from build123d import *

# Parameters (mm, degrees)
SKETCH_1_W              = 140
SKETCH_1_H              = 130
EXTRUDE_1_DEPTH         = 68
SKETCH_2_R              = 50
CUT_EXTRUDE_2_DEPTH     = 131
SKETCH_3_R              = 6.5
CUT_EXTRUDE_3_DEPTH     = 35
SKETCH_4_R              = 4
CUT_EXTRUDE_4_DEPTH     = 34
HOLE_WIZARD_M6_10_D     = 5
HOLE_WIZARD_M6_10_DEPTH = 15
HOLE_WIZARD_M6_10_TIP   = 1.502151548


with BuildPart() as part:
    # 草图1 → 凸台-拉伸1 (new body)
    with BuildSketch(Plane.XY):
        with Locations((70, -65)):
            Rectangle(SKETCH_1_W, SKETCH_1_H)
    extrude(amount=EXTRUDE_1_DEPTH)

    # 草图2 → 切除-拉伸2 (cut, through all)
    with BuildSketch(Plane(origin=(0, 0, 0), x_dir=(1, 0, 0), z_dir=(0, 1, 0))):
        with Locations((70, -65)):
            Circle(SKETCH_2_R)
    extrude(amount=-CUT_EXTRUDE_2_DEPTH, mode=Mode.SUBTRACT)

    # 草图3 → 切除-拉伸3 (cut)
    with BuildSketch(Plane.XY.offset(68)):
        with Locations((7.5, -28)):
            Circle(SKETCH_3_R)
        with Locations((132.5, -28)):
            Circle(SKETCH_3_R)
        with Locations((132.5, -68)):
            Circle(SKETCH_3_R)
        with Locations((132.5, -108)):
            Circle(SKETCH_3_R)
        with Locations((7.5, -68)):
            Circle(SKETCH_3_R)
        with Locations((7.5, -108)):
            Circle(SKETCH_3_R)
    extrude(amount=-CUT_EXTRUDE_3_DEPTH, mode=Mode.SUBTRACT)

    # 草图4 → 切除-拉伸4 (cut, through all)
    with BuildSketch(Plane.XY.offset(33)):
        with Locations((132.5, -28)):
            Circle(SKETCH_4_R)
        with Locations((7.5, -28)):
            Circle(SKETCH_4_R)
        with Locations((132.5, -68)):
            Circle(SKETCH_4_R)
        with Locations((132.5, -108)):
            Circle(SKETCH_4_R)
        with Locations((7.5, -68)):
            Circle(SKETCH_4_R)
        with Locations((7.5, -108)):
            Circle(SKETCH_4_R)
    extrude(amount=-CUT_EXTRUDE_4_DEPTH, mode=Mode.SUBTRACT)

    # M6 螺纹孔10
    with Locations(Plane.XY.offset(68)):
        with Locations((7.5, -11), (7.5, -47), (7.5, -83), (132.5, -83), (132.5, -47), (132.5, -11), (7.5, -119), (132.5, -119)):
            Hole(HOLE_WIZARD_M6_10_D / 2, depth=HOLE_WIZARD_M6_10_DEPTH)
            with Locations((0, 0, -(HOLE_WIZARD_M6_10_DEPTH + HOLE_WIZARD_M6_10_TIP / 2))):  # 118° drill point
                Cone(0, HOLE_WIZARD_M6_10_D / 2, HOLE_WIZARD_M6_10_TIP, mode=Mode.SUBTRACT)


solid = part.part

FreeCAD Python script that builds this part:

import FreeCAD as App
import Part
import Sketcher
from FreeCAD import Vector
Q = App.Units.Quantity


def add_polygon(sketch, points):
    """Adds a closed chain of lines whose ends are joined by coincident constraints."""
    first, n = sketch.GeometryCount, len(points)
    for a, b in zip(points, points[1:] + points[:1]):
        sketch.addGeometry(Part.LineSegment(App.Vector(*a, 0), App.Vector(*b, 0)), False)
    for i in range(n):
        sketch.addConstraint(Sketcher.Constraint("Coincident", first + i, 2, first + (i + 1) % n, 1))

doc = App.newDocument("Part")
body = doc.addObject("PartDesign::Body", "Body")

# Sketch on XY plane
sketch1 = body.newObject("Sketcher::SketchObject", "Sketch")
sketch1.AttachmentSupport = (doc.getObject("XY_Plane"), [""])
sketch1.MapMode = "FlatFace"
add_polygon(sketch1, [(0, 0), (0, -130), (140, -130), (140, 0)])  # lines 0-3
sketch1.addConstraint([
    Sketcher.Constraint("Vertical", 0),
    Sketcher.Constraint("Horizontal", 1),
    Sketcher.Constraint("Vertical", 2),
    Sketcher.Constraint("Horizontal", 3),
    Sketcher.Constraint("Coincident", 3, 2, -1, 1),
    Sketcher.Constraint("DistanceX", 1, 1, 1, 2, Q("140 mm")),
    Sketcher.Constraint("DistanceY", 0, 2, 0, 1, Q("130 mm")),
])
pad1 = body.newObject("PartDesign::Pad", "Pad")
pad1.Profile = sketch1
pad1.Length = 68

# Sketch on XZ plane
sketch2 = body.newObject("Sketcher::SketchObject", "Sketch001")
sketch2.AttachmentSupport = (doc.getObject("XZ_Plane"), [""])
sketch2.MapMode = "FlatFace"
sketch2.addGeometry(Part.Circle(Vector(70, 65, 0), Vector(0, 0, 1), 50), False)
sketch2.addConstraint([
    Sketcher.Constraint("Diameter", 0, Q("100 mm")),
    Sketcher.Constraint("DistanceX", -1, 1, 0, 3, Q("70 mm")),
    Sketcher.Constraint("DistanceY", -1, 1, 0, 3, Q("65 mm")),
])
pocket1 = body.newObject("PartDesign::Pocket", "Pocket")
pocket1.Profile = sketch2
pocket1.Type = "ThroughAll"
pocket1.Reversed = True

# Sketch on XY plane
sketch3 = body.newObject("Sketcher::SketchObject", "Sketch002")
sketch3.AttachmentSupport = (doc.getObject("XY_Plane"), [""])
sketch3.MapMode = "FlatFace"
sketch3.AttachmentOffset = App.Placement(Vector(0, 0, 68), App.Rotation())
sketch3.addGeometry([
    Part.Circle(Vector(8, -28, 0), Vector(0, 0, 1), 6),  # 0
    Part.Circle(Vector(132, -28, 0), Vector(0, 0, 1), 6),  # 1
    Part.Circle(Vector(132, -68, 0), Vector(0, 0, 1), 6),  # 2
    Part.Circle(Vector(132, -108, 0), Vector(0, 0, 1), 6),  # 3
    Part.Circle(Vector(8, -68, 0), Vector(0, 0, 1), 6),  # 4
    Part.Circle(Vector(8, -108, 0), Vector(0, 0, 1), 6),  # 5
], False)
sketch3.addConstraint([
    Sketcher.Constraint("Equal", 0, 1),
    Sketcher.Constraint("Equal", 1, 2),
    Sketcher.Constraint("Equal", 2, 3),
    Sketcher.Constraint("Equal", 3, 4),
    Sketcher.Constraint("Equal", 4, 5),
    Sketcher.Constraint("Horizontal", 0, 3, 1, 3),
    Sketcher.Constraint("Horizontal", 2, 3, 4, 3),
    Sketcher.Constraint("Horizontal", 3, 3, 5, 3),
    Sketcher.Constraint("Vertical", 1, 3, 2, 3),
    Sketcher.Constraint("Vertical", 2, 3, 3, 3),
    Sketcher.Constraint("Vertical", 0, 3, 4, 3),
    Sketcher.Constraint("Vertical", 4, 3, 5, 3),
    Sketcher.Constraint("Diameter", 0, Q("13 mm")),
    Sketcher.Constraint("DistanceY", 0, 3, -1, 1, Q("28 mm")),
    Sketcher.Constraint("DistanceY", 2, 3, -1, 1, Q("68 mm")),
    Sketcher.Constraint("DistanceY", 3, 3, -1, 1, Q("108 mm")),
    Sketcher.Constraint("DistanceX", 0, 3, 1, 3, Q("125 mm")),
    Sketcher.Constraint("DistanceX", -1, 1, 0, 3, Q("7.5 mm")),
])
pocket2 = body.newObject("PartDesign::Pocket", "Pocket001")
pocket2.Profile = sketch3
pocket2.Length = 35

# Sketch on XY plane
sketch4 = body.newObject("Sketcher::SketchObject", "Sketch003")
sketch4.AttachmentSupport = (doc.getObject("XY_Plane"), [""])
sketch4.MapMode = "FlatFace"
sketch4.AttachmentOffset = App.Placement(Vector(0, 0, 33), App.Rotation())
sketch4.addGeometry([
    Part.Circle(Vector(132.5, -28, 0), Vector(0, 0, 1), 4),  # 0
    Part.Circle(Vector(7.5, -28, 0), Vector(0, 0, 1), 4),  # 1
    Part.Circle(Vector(132.5, -68, 0), Vector(0, 0, 1), 4),  # 2
    Part.Circle(Vector(132.5, -108, 0), Vector(0, 0, 1), 4),  # 3
    Part.Circle(Vector(7.5, -68, 0), Vector(0, 0, 1), 4),  # 4
    Part.Circle(Vector(7.5, -108, 0), Vector(0, 0, 1), 4),  # 5
], False)
sketch4.addConstraint([
    Sketcher.Constraint("Equal", 0, 1),
    Sketcher.Constraint("Equal", 1, 2),
    Sketcher.Constraint("Equal", 2, 3),
    Sketcher.Constraint("Equal", 3, 4),
    Sketcher.Constraint("Equal", 4, 5),
    Sketcher.Constraint("Horizontal", 0, 3, 1, 3),
    Sketcher.Constraint("Horizontal", 2, 3, 4, 3),
    Sketcher.Constraint("Horizontal", 3, 3, 5, 3),
    Sketcher.Constraint("Vertical", 0, 3, 2, 3),
    Sketcher.Constraint("Vertical", 2, 3, 3, 3),
    Sketcher.Constraint("Vertical", 1, 3, 4, 3),
    Sketcher.Constraint("Vertical", 4, 3, 5, 3),
    Sketcher.Constraint("Diameter", 0, Q("8 mm")),
    Sketcher.Constraint("DistanceY", 0, 3, -1, 1, Q("28 mm")),
    Sketcher.Constraint("DistanceY", 2, 3, -1, 1, Q("68 mm")),
    Sketcher.Constraint("DistanceY", 3, 3, -1, 1, Q("108 mm")),
    Sketcher.Constraint("DistanceX", 1, 3, 0, 3, Q("125 mm")),
    Sketcher.Constraint("DistanceX", -1, 1, 0, 3, Q("132.5 mm")),
])
pocket3 = body.newObject("PartDesign::Pocket", "Pocket002")
pocket3.Profile = sketch4
pocket3.Type = "ThroughAll"

# Sketch on XY plane
sketch5 = body.newObject("Sketcher::SketchObject", "Sketch004")
sketch5.AttachmentSupport = (doc.getObject("XY_Plane"), [""])
sketch5.MapMode = "FlatFace"
sketch5.AttachmentOffset = App.Placement(Vector(0, 0, 68), App.Rotation())
sketch5.addGeometry([
    Part.Circle(Vector(7.5, -11, 0), Vector(0, 0, 1), 2.5),  # 0
    Part.Circle(Vector(7.5, -47, 0), Vector(0, 0, 1), 2.5),  # 1
    Part.Circle(Vector(7.5, -83, 0), Vector(0, 0, 1), 2.5),  # 2
    Part.Circle(Vector(132.5, -83, 0), Vector(0, 0, 1), 2.5),  # 3
    Part.Circle(Vector(132.5, -47, 0), Vector(0, 0, 1), 2.5),  # 4
    Part.Circle(Vector(132.5, -11, 0), Vector(0, 0, 1), 2.5),  # 5
    Part.Circle(Vector(7.5, -119, 0), Vector(0, 0, 1), 2.5),  # 6
    Part.Circle(Vector(132.5, -119, 0), Vector(0, 0, 1), 2.5),  # 7
], False)
sketch5.addConstraint([
    Sketcher.Constraint("Equal", 0, 1),
    Sketcher.Constraint("Equal", 1, 2),
    Sketcher.Constraint("Equal", 2, 3),
    Sketcher.Constraint("Equal", 3, 4),
    Sketcher.Constraint("Equal", 4, 5),
    Sketcher.Constraint("Equal", 5, 6),
    Sketcher.Constraint("Equal", 6, 7),
    Sketcher.Constraint("Horizontal", 2, 3, 3, 3),
    Sketcher.Constraint("Horizontal", 1, 3, 4, 3),
    Sketcher.Constraint("Horizontal", 0, 3, 5, 3),
    Sketcher.Constraint("Horizontal", 6, 3, 7, 3),
    Sketcher.Constraint("Vertical", 0, 3, 1, 3),
    Sketcher.Constraint("Vertical", 1, 3, 2, 3),
    Sketcher.Constraint("Vertical", 3, 3, 4, 3),
    Sketcher.Constraint("Vertical", 4, 3, 5, 3),
    Sketcher.Constraint("Vertical", 2, 3, 6, 3),
    Sketcher.Constraint("Vertical", 5, 3, 7, 3),
    Sketcher.Constraint("Diameter", 0, Q("5 mm")),
    Sketcher.Constraint("DistanceY", 0, 3, -1, 1, Q("11 mm")),
    Sketcher.Constraint("DistanceY", 1, 3, -1, 1, Q("47 mm")),
    Sketcher.Constraint("DistanceY", 2, 3, -1, 1, Q("83 mm")),
    Sketcher.Constraint("DistanceY", 6, 3, -1, 1, Q("119 mm")),
    Sketcher.Constraint("DistanceX", 2, 3, 3, 3, Q("125 mm")),
    Sketcher.Constraint("DistanceX", -1, 1, 0, 3, Q("7.5 mm")),
])
doc.recompute()
hole = body.newObject("PartDesign::Hole", "Hole")
hole.Profile = sketch5
hole.ThreadType = "None"
hole.Diameter = 5
hole.DepthType = "Dimension"
hole.Depth = 15
hole.DrillPoint = "Angled"
hole.DrillPointAngle = 118

doc.recompute()
